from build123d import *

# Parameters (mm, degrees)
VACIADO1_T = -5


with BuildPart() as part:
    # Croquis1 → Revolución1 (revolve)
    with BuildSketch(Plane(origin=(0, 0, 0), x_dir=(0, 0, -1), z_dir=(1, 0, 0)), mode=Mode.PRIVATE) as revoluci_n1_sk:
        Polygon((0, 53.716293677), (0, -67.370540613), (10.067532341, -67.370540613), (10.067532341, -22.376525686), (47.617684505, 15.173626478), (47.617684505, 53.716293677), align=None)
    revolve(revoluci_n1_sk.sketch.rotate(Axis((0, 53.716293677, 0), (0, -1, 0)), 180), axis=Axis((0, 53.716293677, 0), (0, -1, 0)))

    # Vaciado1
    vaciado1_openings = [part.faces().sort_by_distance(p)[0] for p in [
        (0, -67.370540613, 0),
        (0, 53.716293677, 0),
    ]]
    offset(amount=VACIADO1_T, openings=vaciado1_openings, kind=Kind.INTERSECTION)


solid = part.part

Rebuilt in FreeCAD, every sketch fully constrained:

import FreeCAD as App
import Part
import Sketcher
Q = App.Units.Quantity


def faces_at(feature, points):
    """Names of the faces that lie closest to the given points."""
    faces = feature.Shape.Faces
    near = lambda p: min(range(len(faces)), key=lambda i: faces[i].distToShape(Part.Vertex(*p))[0])
    return sorted({f"Face{near(p) + 1}" for p in points})


def add_polygon(sketch, points):
    """Adds a closed chain of lines whose ends are joined by coincident constraints."""
    first, n = sketch.GeometryCount, len(points)
    for a, b in zip(points, points[1:] + points[:1]):
        sketch.addGeometry(Part.LineSegment(App.Vector(*a, 0), App.Vector(*b, 0)), False)
    for i in range(n):
        sketch.addConstraint(Sketcher.Constraint("Coincident", first + i, 2, first + (i + 1) % n, 1))

doc = App.newDocument("Part")
body = doc.addObject("PartDesign::Body", "Body")

# Sketch on YZ plane
sketch1 = doc.addObject("Sketcher::SketchObject", "Sketch")
body.addObject(sketch1)
sketch1.AttachmentSupport = (doc.YZ_Plane, [""])
sketch1.MapMode = "FlatFace"
add_polygon(sketch1, [(54, 0), (-67, 0), (-67, -10), (-22, -10), (15, -48), (54, -48)])  # lines 0-5
sketch1.addConstraint([
    Sketcher.Constraint("Horizontal", 0),
    Sketcher.Constraint("Vertical", 1),
    Sketcher.Constraint("Horizontal", 2),
    Sketcher.Constraint("Horizontal", 4),
    Sketcher.Constraint("Vertical", 5),
    Sketcher.Constraint("PointOnObject", 0, 2, -1),
    Sketcher.Constraint("Angle", 3, Q("-45 deg")),
    Sketcher.Constraint("DistanceX", 0, 2, 0, 1, 121.086834),
    Sketcher.Constraint("DistanceX", 2, 1, 2, 2, 44.994015),
    Sketcher.Constraint("DistanceX", 4, 1, 4, 2, 38.542667),
    Sketcher.Constraint("DistanceY", 1, 2, 1, 1, 10.067532),
    Sketcher.Constraint("DistanceX", 0, 2, -1, 1, 67.370541),
])
revolution = doc.addObject("PartDesign::Revolution", "Revolution")
body.addObject(revolution)
revolution.Profile = sketch1
revolution.ReferenceAxis = (sketch1, ["H_Axis"])
revolution.Angle = 360
doc.recompute()

thickness = doc.addObject("PartDesign::Thickness", "Thickness")
body.addObject(thickness)
thickness.Base = (revolution, faces_at(revolution, [(0, -67.371, 0), (0, 53.716, 0)]))
thickness.Value = 5
thickness.Reversed = True
thickness.Join = "Intersection"

doc.recompute()
